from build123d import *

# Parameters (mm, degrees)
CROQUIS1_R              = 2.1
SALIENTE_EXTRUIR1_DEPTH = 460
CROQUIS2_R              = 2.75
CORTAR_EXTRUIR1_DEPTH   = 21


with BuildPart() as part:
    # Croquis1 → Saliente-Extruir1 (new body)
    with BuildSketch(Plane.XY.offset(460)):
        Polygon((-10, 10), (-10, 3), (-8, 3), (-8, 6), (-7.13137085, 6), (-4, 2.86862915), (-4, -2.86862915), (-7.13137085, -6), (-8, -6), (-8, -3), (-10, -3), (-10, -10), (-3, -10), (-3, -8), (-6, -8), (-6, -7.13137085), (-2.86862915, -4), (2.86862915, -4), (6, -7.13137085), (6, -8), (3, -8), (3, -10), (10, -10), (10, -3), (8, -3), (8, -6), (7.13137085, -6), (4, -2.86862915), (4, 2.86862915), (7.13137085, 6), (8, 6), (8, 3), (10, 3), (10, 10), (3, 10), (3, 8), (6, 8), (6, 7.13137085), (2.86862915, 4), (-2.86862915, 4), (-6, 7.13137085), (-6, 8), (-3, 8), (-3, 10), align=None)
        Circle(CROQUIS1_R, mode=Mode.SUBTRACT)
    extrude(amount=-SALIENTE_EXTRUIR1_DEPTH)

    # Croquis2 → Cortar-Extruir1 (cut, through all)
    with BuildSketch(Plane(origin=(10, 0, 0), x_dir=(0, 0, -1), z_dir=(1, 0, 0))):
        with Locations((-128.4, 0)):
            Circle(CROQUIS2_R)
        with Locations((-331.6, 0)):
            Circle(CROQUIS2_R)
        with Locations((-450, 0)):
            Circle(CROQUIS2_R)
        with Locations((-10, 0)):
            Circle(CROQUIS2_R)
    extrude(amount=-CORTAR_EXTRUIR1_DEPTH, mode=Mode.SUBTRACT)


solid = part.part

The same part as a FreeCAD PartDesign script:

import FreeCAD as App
import Part
import Sketcher

V = App.Vector
Q = App.Units.Quantity

doc = App.newDocument("Part")
body = doc.addObject("PartDesign::Body", "Body")

# Sketch on XY plane
sketch1 = body.newObject("Sketcher::SketchObject", "Sketch")
sketch1.AttachmentSupport = (doc.getObject("XY_Plane"), [""])
sketch1.MapMode = "FlatFace"
sketch1.AttachmentOffset = App.Placement(V(0, 0, 460), App.Rotation())
sketch1.addGeometry([
    Part.LineSegment(V(-10, 10, 0), V(-10, 3, 0)),  # 0
    Part.LineSegment(V(-10, 3, 0), V(-8, 3, 0)),  # 1
    Part.LineSegment(V(-8, 3, 0), V(-8, 6, 0)),  # 2
    Part.LineSegment(V(-8, 6, 0), V(-7.131371, 6, 0)),  # 3
    Part.LineSegment(V(-7.131371, 6, 0), V(-4, 2.868629, 0)),  # 4
    Part.LineSegment(V(-4, 2.868629, 0), V(-4, -2.868629, 0)),  # 5
    Part.LineSegment(V(-4, -2.868629, 0), V(-7.131371, -6, 0)),  # 6
    Part.LineSegment(V(-7.131371, -6, 0), V(-8, -6, 0)),  # 7
    Part.LineSegment(V(-8, -6, 0), V(-8, -3, 0)),  # 8
    Part.LineSegment(V(-8, -3, 0), V(-10, -3, 0)),  # 9
    Part.LineSegment(V(-10, -3, 0), V(-10, -10, 0)),  # 10
    Part.LineSegment(V(-10, -10, 0), V(-3, -10, 0)),  # 11
    Part.LineSegment(V(-3, -10, 0), V(-3, -8, 0)),  # 12
    Part.LineSegment(V(-3, -8, 0), V(-6, -8, 0)),  # 13
    Part.LineSegment(V(-6, -8, 0), V(-6, -7.131371, 0)),  # 14
    Part.LineSegment(V(-6, -7.131371, 0), V(-2.868629, -4, 0)),  # 15
    Part.LineSegment(V(-2.868629, -4, 0), V(2.868629, -4, 0)),  # 16
    Part.LineSegment(V(2.868629, -4, 0), V(6, -7.131371, 0)),  # 17
    Part.LineSegment(V(6, -7.131371, 0), V(6, -8, 0)),  # 18
    Part.LineSegment(V(6, -8, 0), V(3, -8, 0)),  # 19
    Part.LineSegment(V(3, -8, 0), V(3, -10, 0)),  # 20
    Part.LineSegment(V(3, -10, 0), V(10, -10, 0)),  # 21
    Part.LineSegment(V(10, -10, 0), V(10, -3, 0)),  # 22
    Part.LineSegment(V(10, -3, 0), V(8, -3, 0)),  # 23
    Part.LineSegment(V(8, -3, 0), V(8, -6, 0)),  # 24
    Part.LineSegment(V(8, -6, 0), V(7.131371, -6, 0)),  # 25
    Part.LineSegment(V(7.131371, -6, 0), V(4, -2.868629, 0)),  # 26
    Part.LineSegment(V(4, -2.868629, 0), V(4, 2.868629, 0)),  # 27
    Part.LineSegment(V(4, 2.868629, 0), V(7.131371, 6, 0)),  # 28
    Part.LineSegment(V(7.131371, 6, 0), V(8, 6, 0)),  # 29
    Part.LineSegment(V(8, 6, 0), V(8, 3, 0)),  # 30
    Part.LineSegment(V(8, 3, 0), V(10, 3, 0)),  # 31
    Part.LineSegment(V(10, 3, 0), V(10, 10, 0)),  # 32
    Part.LineSegment(V(10, 10, 0), V(3, 10, 0)),  # 33
    Part.LineSegment(V(3, 10, 0), V(3, 8, 0)),  # 34
    Part.LineSegment(V(3, 8, 0), V(6, 8, 0)),  # 35
    Part.LineSegment(V(6, 8, 0), V(6, 7.131371, 0)),  # 36
    Part.LineSegment(V(6, 7.131371, 0), V(2.868629, 4, 0)),  # 37
    Part.LineSegment(V(2.868629, 4, 0), V(-2.868629, 4, 0)),  # 38
    Part.LineSegment(V(-2.868629, 4, 0), V(-6, 7.131371, 0)),  # 39
    Part.LineSegment(V(-6, 7.131371, 0), V(-6, 8, 0)),  # 40
    Part.LineSegment(V(-6, 8, 0), V(-3, 8, 0)),  # 41
    Part.LineSegment(V(-3, 8, 0), V(-3, 10, 0)),  # 42
    Part.LineSegment(V(-3, 10, 0), V(-10, 10, 0)),  # 43
    Part.Circle(V(0, 0, 0), V(0, 0, 1), 2.1),  # 44
], False)
sketch1.addConstraint([
    Sketcher.Constraint("Coincident", 0, 2, 1, 1),
    Sketcher.Constraint("Coincident", 1, 2, 2, 1),
    Sketcher.Constraint("Coincident", 2, 2, 3, 1),
    Sketcher.Constraint("Coincident", 3, 2, 4, 1),
    Sketcher.Constraint("Coincident", 4, 2, 5, 1),
    Sketcher.Constraint("Coincident", 5, 2, 6, 1),
    Sketcher.Constraint("Coincident", 6, 2, 7, 1),
    Sketcher.Constraint("Coincident", 7, 2, 8, 1),
    Sketcher.Constraint("Coincident", 8, 2, 9, 1),
    Sketcher.Constraint("Coincident", 9, 2, 10, 1),
    Sketcher.Constraint("Coincident", 10, 2, 11, 1),
    Sketcher.Constraint("Coincident", 11, 2, 12, 1),
    Sketcher.Constraint("Coincident", 12, 2, 13, 1),
    Sketcher.Constraint("Coincident", 13, 2, 14, 1),
    Sketcher.Constraint("Coincident", 14, 2, 15, 1),
    Sketcher.Constraint("Coincident", 15, 2, 16, 1),
    Sketcher.Constraint("Coincident", 16, 2, 17, 1),
    Sketcher.Constraint("Coincident", 17, 2, 18, 1),
    Sketcher.Constraint("Coincident", 18, 2, 19, 1),
    Sketcher.Constraint("Coincident", 19, 2, 20, 1),
    Sketcher.Constraint("Coincident", 20, 2, 21, 1),
    Sketcher.Constraint("Coincident", 21, 2, 22, 1),
    Sketcher.Constraint("Coincident", 22, 2, 23, 1),
    Sketcher.Constraint("Coincident", 23, 2, 24, 1),
    Sketcher.Constraint("Coincident", 24, 2, 25, 1),
    Sketcher.Constraint("Coincident", 25, 2, 26, 1),
    Sketcher.Constraint("Coincident", 26, 2, 27, 1),
    Sketcher.Constraint("Coincident", 27, 2, 28, 1),
    Sketcher.Constraint("Coincident", 28, 2, 29, 1),
    Sketcher.Constraint("Coincident", 29, 2, 30, 1),
    Sketcher.Constraint("Coincident", 30, 2, 31, 1),
    Sketcher.Constraint("Coincident", 31, 2, 32, 1),
    Sketcher.Constraint("Coincident", 32, 2, 33, 1),
    Sketcher.Constraint("Coincident", 33, 2, 34, 1),
    Sketcher.Constraint("Coincident", 34, 2, 35, 1),
    Sketcher.Constraint("Coincident", 35, 2, 36, 1),
    Sketcher.Constraint("Coincident", 36, 2, 37, 1),
    Sketcher.Constraint("Coincident", 37, 2, 38, 1),
    Sketcher.Constraint("Coincident", 38, 2, 39, 1),
    Sketcher.Constraint("Coincident", 39, 2, 40, 1),
    Sketcher.Constraint("Coincident", 40, 2, 41, 1),
    Sketcher.Constraint("Coincident", 41, 2, 42, 1),
    Sketcher.Constraint("Coincident", 42, 2, 43, 1),
    Sketcher.Constraint("Coincident", 43, 2, 0, 1),
    Sketcher.Constraint("Vertical", 0),
    Sketcher.Constraint("Horizontal", 1),
    Sketcher.Constraint("Vertical", 2),
    Sketcher.Constraint("Horizontal", 3),
    Sketcher.Constraint("Vertical", 5),
    Sketcher.Constraint("Horizontal", 7),
    Sketcher.Constraint("Vertical", 8),
    Sketcher.Constraint("Horizontal", 9),
    Sketcher.Constraint("Vertical", 10),
    Sketcher.Constraint("Horizontal", 11),
    Sketcher.Constraint("Vertical", 12),
    Sketcher.Constraint("Horizontal", 13),
    Sketcher.Constraint("Vertical", 14),
    Sketcher.Constraint("Horizontal", 16),
    Sketcher.Constraint("Vertical", 18),
    Sketcher.Constraint("Horizontal", 19),
    Sketcher.Constraint("Vertical", 20),
    Sketcher.Constraint("Horizontal", 21),
    Sketcher.Constraint("Vertical", 22),
    Sketcher.Constraint("Horizontal", 23),
    Sketcher.Constraint("Vertical", 24),
    Sketcher.Constraint("Horizontal", 25),
    Sketcher.Constraint("Vertical", 27),
    Sketcher.Constraint("Horizontal", 29),
    Sketcher.Constraint("Vertical", 30),
    Sketcher.Constraint("Horizontal", 31),
    Sketcher.Constraint("Vertical", 32),
    Sketcher.Constraint("Horizontal", 33),
    Sketcher.Constraint("Vertical", 34),
    Sketcher.Constraint("Horizontal", 35),
    Sketcher.Constraint("Vertical", 36),
    Sketcher.Constraint("Horizontal", 38),
    Sketcher.Constraint("Vertical", 40),
    Sketcher.Constraint("Horizontal", 41),
    Sketcher.Constraint("Vertical", 42),
    Sketcher.Constraint("Horizontal", 43),
    Sketcher.Constraint("Coincident", 44, 3, -1, 1),
    Sketcher.Constraint("Symmetric", 0, 2, 22, 2, -1, 1),
    Sketcher.Constraint("Symmetric", 2, 2, 24, 2, -1, 1),
    Sketcher.Constraint("Symmetric", 4, 2, 26, 2, -1, 1),
    Sketcher.Constraint("Symmetric", 6, 2, 28, 2, -1, 1),
    Sketcher.Constraint("Symmetric", 8, 2, 30, 2, -1, 1),
    Sketcher.Constraint("Symmetric", 10, 2, 32, 2, -1, 1),
    Sketcher.Constraint("Symmetric", 12, 2, 34, 2, -1, 1),
    Sketcher.Constraint("Symmetric", 14, 2, 36, 2, -1, 1),
    Sketcher.Constraint("Symmetric", 15, 2, 37, 2, -1, 1),
    Sketcher.Constraint("Symmetric", 17, 2, 39, 2, -1, 1),
    Sketcher.Constraint("Symmetric", 19, 2, 41, 2, -1, 1),
    Sketcher.Constraint("Symmetric", 14, 2, 17, 2, -2),
    Sketcher.Constraint("Symmetric", 12, 2, 19, 2, -2),
    Sketcher.Constraint("Symmetric", 10, 2, 21, 2, -2),
    Sketcher.Constraint("Symmetric", 8, 2, 23, 2, -2),
    Sketcher.Constraint("Symmetric", 6, 2, 25, 2, -2),
    Sketcher.Constraint("Perpendicular", 4, 6),
    Sketcher.Constraint("Parallel", 6, 15),
    Sketcher.Constraint("Perpendicular", 15, 17),
    Sketcher.Constraint("Parallel", 17, 26),
    Sketcher.Constraint("Perpendicular", 26, 28),
    Sketcher.Constraint("Perpendicular", 37, 39),
    Sketcher.Constraint("Horizontal", 5, 2, 26, 2),
    Sketcher.Constraint("Horizontal", 33, 2, 42, 2),
    Sketcher.Constraint("Equal", 43, 0),
    Sketcher.Constraint("Equal", 41, 2),
    Sketcher.Constraint("Equal", 38, 5),
    Sketcher.Constraint("Equal", 31, 12),
    Sketcher.Constraint("Equal", 29, 14),
    Sketcher.Constraint("Equal", 6, 15),
    Sketcher.Constraint("Diameter", 44, Q("4.2 mm")),
    Sketcher.Constraint("DistanceX", 1, 1, 1, 2, Q("2 mm")),
    Sketcher.Constraint("DistanceX", 11, 1, 11, 2, Q("7 mm")),
    Sketcher.Constraint("DistanceX", 13, 2, 13, 1, Q("3 mm")),
    Sketcher.Constraint("DistanceX", 0, 2, -1, 1, Q("10 mm")),
    Sketcher.Constraint("DistanceX", 4, 2, -1, 1, Q("4 mm")),
    Sketcher.Constraint("DistanceX", 3, 1, 3, 2, Q("0.868629 mm")),
])
pad1 = body.newObject("PartDesign::Pad", "Pad")
pad1.Profile = sketch1
pad1.Length = 460
pad1.Reversed = True

# Sketch on YZ plane
sketch2 = body.newObject("Sketcher::SketchObject", "Sketch001")
sketch2.AttachmentSupport = (doc.getObject("YZ_Plane"), [""])
sketch2.MapMode = "FlatFace"
sketch2.AttachmentOffset = App.Placement(V(0, 0, 10), App.Rotation())
sketch2.addGeometry([
    Part.Circle(V(0, 128.4, 0), V(0, 0, 1), 2.75),
    Part.Circle(V(0, 331.6, 0), V(0, 0, 1), 2.75),
    Part.Circle(V(0, 450, 0), V(0, 0, 1), 2.75),
    Part.Circle(V(0, 10, 0), V(0, 0, 1), 2.75),
], False)
sketch2.addConstraint([
    Sketcher.Constraint("Equal", 0, 1),
    Sketcher.Constraint("Equal", 1, 2),
    Sketcher.Constraint("Equal", 2, 3),
    Sketcher.Constraint("PointOnObject", 0, 3, -2),
    Sketcher.Constraint("PointOnObject", 1, 3, -2),
    Sketcher.Constraint("PointOnObject", 2, 3, -2),
    Sketcher.Constraint("PointOnObject", 3, 3, -2),
    Sketcher.Constraint("Diameter", 0, Q("5.5 mm")),
    Sketcher.Constraint("DistanceY", -1, 1, 2, 3, Q("450 mm")),
    Sketcher.Constraint("DistanceY", -1, 1, 3, 3, Q("10 mm")),
    Sketcher.Constraint("DistanceY", -1, 1, 0, 3, Q("128.4 mm")),
    Sketcher.Constraint("DistanceY", -1, 1, 1, 3, Q("331.6 mm")),
])
pocket1 = body.newObject("PartDesign::Pocket", "Pocket")
pocket1.Profile = sketch2
pocket1.Type = "ThroughAll"

doc.recompute()
